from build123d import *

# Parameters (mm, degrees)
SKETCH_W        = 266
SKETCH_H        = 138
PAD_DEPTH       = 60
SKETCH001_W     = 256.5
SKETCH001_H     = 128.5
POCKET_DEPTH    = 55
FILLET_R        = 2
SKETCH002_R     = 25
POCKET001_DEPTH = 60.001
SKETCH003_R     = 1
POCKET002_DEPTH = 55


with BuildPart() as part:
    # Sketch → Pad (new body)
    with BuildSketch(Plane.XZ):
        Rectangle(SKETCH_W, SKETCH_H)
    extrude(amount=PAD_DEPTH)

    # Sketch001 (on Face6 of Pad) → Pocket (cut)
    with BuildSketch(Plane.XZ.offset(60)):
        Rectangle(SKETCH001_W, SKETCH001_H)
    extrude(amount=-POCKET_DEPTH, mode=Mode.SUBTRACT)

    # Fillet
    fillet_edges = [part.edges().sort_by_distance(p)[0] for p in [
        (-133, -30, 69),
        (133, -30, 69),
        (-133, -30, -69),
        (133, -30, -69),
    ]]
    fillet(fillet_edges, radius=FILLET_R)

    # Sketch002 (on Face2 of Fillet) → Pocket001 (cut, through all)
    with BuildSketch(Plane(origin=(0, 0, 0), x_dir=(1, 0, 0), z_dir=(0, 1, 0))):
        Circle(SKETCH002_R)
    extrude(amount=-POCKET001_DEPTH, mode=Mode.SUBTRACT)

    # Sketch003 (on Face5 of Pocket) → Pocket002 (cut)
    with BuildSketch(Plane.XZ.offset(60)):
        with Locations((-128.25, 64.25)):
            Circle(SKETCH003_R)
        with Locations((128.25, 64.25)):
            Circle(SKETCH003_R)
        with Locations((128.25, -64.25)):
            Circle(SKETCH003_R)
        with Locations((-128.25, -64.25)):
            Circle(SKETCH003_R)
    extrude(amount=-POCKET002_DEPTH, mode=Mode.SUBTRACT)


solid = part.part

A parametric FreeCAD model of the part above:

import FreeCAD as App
import Part
import Sketcher


def edges_at(feature, points):
    """Names of the edges that pass closest to the given points."""
    edges = feature.Shape.Edges
    near = lambda p: min(range(len(edges)), key=lambda i: edges[i].distToShape(Part.Vertex(*p))[0])
    return sorted({f"Edge{near(p) + 1}" for p in points})


def add_polygon(sketch, points):
    """Adds a closed chain of lines whose ends are joined by coincident constraints."""
    first, n = sketch.GeometryCount, len(points)
    for a, b in zip(points, points[1:] + points[:1]):
        sketch.addGeometry(Part.LineSegment(App.Vector(*a, 0), App.Vector(*b, 0)), False)
    for i in range(n):
        sketch.addConstraint(Sketcher.Constraint("Coincident", first + i, 2, first + (i + 1) % n, 1))

doc = App.newDocument("Part")
body = doc.addObject("PartDesign::Body", "Body")

# Sketch on XZ plane
sketch1 = body.newObject("Sketcher::SketchObject", "Sketch")
sketch1.AttachmentSupport = (doc.getObject("XZ_Plane"), [""])
sketch1.MapMode = "FlatFace"
add_polygon(sketch1, [(-133, 69), (-133, -69), (133, -69), (133, 69)])  # lines 0-3
sketch1.addConstraint([
    Sketcher.Constraint("Vertical", 0),
    Sketcher.Constraint("Horizontal", 1),
    Sketcher.Constraint("Vertical", 2),
    Sketcher.Constraint("Horizontal", 3),
    Sketcher.Constraint("Symmetric", 0, 2, 2, 2, -1, 1),
    Sketcher.Constraint("DistanceX", 1, 1, 1, 2, 266.0),
    Sketcher.Constraint("DistanceY", 0, 2, 0, 1, 138.0),
])
pad1 = body.newObject("PartDesign::Pad", "Pad")
pad1.Profile = sketch1
pad1.Length = 60

# Sketch on XZ plane
sketch2 = body.newObject("Sketcher::SketchObject", "Sketch001")
sketch2.AttachmentSupport = (doc.getObject("XZ_Plane"), [""])
sketch2.MapMode = "FlatFace"
sketch2.AttachmentOffset = App.Placement(App.Vector(0, 0, 60), App.Rotation())
add_polygon(sketch2, [(-128, 64), (-128, -64), (128, -64), (128, 64)])  # lines 0-3
sketch2.addConstraint([
    Sketcher.Constraint("Vertical", 0),
    Sketcher.Constraint("Horizontal", 1),
    Sketcher.Constraint("Vertical", 2),
    Sketcher.Constraint("Horizontal", 3),
    Sketcher.Constraint("Symmetric", 0, 2, 2, 2, -1, 1),
    Sketcher.Constraint("DistanceX", 1, 1, 1, 2, 256.5),
    Sketcher.Constraint("DistanceY", 0, 2, 0, 1, 128.5),
])
pocket1 = body.newObject("PartDesign::Pocket", "Pocket")
pocket1.Profile = sketch2
pocket1.Length = 55
doc.recompute()

fillet = body.newObject("PartDesign::Fillet", "Fillet")
fillet.Base = (pocket1, edges_at(pocket1, [
    (-133, -30, 69),
    (133, -30, 69),
    (-133, -30, -69),
    (133, -30, -69),
]))
fillet.Radius = 2

# Sketch on XZ plane
sketch3 = body.newObject("Sketcher::SketchObject", "Sketch002")
sketch3.AttachmentSupport = (doc.getObject("XZ_Plane"), [""])
sketch3.MapMode = "FlatFace"
sketch3.addGeometry(Part.Circle(App.Vector(0, 0, 0), App.Vector(0, 0, 1), 25), False)
sketch3.addConstraint([
    Sketcher.Constraint("Coincident", 0, 3, -1, 1),
    Sketcher.Constraint("Diameter", 0, 50.0),
])
pocket2 = body.newObject("PartDesign::Pocket", "Pocket001")
pocket2.Profile = sketch3
pocket2.Type = "ThroughAll"
pocket2.Reversed = True

# Sketch on XZ plane
sketch4 = body.newObject("Sketcher::SketchObject", "Sketch003")
sketch4.AttachmentSupport = (doc.getObject("XZ_Plane"), [""])
sketch4.MapMode = "FlatFace"
sketch4.AttachmentOffset = App.Placement(App.Vector(0, 0, 60), App.Rotation())
sketch4.addGeometry([
    Part.Circle(App.Vector(-128.2, 64.2, 0), App.Vector(0, 0, 1), 1),
    Part.Circle(App.Vector(128.2, 64.2, 0), App.Vector(0, 0, 1), 1),
    Part.Circle(App.Vector(128.2, -64.2, 0), App.Vector(0, 0, 1), 1),
    Part.Circle(App.Vector(-128.2, -64.2, 0), App.Vector(0, 0, 1), 1),
], False)
sketch4.addConstraint([
    Sketcher.Constraint("Equal", 0, 1),
    Sketcher.Constraint("Equal", 1, 2),
    Sketcher.Constraint("Equal", 2, 3),
    Sketcher.Constraint("Symmetric", 0, 3, 2, 3, -1, 1),
    Sketcher.Constraint("Symmetric", 1, 3, 3, 3, -1, 1),
    Sketcher.Constraint("Symmetric", 0, 3, 1, 3, -2),
    Sketcher.Constraint("Diameter", 0, 2.0),
    Sketcher.Constraint("DistanceX", 0, 3, 1, 3, 256.5),
    Sketcher.Constraint("DistanceY", 2, 3, 1, 3, 128.5),
])
pocket3 = body.newObject("PartDesign::Pocket", "Pocket002")
pocket3.Profile = sketch4
pocket3.Length = 55

doc.recompute()
